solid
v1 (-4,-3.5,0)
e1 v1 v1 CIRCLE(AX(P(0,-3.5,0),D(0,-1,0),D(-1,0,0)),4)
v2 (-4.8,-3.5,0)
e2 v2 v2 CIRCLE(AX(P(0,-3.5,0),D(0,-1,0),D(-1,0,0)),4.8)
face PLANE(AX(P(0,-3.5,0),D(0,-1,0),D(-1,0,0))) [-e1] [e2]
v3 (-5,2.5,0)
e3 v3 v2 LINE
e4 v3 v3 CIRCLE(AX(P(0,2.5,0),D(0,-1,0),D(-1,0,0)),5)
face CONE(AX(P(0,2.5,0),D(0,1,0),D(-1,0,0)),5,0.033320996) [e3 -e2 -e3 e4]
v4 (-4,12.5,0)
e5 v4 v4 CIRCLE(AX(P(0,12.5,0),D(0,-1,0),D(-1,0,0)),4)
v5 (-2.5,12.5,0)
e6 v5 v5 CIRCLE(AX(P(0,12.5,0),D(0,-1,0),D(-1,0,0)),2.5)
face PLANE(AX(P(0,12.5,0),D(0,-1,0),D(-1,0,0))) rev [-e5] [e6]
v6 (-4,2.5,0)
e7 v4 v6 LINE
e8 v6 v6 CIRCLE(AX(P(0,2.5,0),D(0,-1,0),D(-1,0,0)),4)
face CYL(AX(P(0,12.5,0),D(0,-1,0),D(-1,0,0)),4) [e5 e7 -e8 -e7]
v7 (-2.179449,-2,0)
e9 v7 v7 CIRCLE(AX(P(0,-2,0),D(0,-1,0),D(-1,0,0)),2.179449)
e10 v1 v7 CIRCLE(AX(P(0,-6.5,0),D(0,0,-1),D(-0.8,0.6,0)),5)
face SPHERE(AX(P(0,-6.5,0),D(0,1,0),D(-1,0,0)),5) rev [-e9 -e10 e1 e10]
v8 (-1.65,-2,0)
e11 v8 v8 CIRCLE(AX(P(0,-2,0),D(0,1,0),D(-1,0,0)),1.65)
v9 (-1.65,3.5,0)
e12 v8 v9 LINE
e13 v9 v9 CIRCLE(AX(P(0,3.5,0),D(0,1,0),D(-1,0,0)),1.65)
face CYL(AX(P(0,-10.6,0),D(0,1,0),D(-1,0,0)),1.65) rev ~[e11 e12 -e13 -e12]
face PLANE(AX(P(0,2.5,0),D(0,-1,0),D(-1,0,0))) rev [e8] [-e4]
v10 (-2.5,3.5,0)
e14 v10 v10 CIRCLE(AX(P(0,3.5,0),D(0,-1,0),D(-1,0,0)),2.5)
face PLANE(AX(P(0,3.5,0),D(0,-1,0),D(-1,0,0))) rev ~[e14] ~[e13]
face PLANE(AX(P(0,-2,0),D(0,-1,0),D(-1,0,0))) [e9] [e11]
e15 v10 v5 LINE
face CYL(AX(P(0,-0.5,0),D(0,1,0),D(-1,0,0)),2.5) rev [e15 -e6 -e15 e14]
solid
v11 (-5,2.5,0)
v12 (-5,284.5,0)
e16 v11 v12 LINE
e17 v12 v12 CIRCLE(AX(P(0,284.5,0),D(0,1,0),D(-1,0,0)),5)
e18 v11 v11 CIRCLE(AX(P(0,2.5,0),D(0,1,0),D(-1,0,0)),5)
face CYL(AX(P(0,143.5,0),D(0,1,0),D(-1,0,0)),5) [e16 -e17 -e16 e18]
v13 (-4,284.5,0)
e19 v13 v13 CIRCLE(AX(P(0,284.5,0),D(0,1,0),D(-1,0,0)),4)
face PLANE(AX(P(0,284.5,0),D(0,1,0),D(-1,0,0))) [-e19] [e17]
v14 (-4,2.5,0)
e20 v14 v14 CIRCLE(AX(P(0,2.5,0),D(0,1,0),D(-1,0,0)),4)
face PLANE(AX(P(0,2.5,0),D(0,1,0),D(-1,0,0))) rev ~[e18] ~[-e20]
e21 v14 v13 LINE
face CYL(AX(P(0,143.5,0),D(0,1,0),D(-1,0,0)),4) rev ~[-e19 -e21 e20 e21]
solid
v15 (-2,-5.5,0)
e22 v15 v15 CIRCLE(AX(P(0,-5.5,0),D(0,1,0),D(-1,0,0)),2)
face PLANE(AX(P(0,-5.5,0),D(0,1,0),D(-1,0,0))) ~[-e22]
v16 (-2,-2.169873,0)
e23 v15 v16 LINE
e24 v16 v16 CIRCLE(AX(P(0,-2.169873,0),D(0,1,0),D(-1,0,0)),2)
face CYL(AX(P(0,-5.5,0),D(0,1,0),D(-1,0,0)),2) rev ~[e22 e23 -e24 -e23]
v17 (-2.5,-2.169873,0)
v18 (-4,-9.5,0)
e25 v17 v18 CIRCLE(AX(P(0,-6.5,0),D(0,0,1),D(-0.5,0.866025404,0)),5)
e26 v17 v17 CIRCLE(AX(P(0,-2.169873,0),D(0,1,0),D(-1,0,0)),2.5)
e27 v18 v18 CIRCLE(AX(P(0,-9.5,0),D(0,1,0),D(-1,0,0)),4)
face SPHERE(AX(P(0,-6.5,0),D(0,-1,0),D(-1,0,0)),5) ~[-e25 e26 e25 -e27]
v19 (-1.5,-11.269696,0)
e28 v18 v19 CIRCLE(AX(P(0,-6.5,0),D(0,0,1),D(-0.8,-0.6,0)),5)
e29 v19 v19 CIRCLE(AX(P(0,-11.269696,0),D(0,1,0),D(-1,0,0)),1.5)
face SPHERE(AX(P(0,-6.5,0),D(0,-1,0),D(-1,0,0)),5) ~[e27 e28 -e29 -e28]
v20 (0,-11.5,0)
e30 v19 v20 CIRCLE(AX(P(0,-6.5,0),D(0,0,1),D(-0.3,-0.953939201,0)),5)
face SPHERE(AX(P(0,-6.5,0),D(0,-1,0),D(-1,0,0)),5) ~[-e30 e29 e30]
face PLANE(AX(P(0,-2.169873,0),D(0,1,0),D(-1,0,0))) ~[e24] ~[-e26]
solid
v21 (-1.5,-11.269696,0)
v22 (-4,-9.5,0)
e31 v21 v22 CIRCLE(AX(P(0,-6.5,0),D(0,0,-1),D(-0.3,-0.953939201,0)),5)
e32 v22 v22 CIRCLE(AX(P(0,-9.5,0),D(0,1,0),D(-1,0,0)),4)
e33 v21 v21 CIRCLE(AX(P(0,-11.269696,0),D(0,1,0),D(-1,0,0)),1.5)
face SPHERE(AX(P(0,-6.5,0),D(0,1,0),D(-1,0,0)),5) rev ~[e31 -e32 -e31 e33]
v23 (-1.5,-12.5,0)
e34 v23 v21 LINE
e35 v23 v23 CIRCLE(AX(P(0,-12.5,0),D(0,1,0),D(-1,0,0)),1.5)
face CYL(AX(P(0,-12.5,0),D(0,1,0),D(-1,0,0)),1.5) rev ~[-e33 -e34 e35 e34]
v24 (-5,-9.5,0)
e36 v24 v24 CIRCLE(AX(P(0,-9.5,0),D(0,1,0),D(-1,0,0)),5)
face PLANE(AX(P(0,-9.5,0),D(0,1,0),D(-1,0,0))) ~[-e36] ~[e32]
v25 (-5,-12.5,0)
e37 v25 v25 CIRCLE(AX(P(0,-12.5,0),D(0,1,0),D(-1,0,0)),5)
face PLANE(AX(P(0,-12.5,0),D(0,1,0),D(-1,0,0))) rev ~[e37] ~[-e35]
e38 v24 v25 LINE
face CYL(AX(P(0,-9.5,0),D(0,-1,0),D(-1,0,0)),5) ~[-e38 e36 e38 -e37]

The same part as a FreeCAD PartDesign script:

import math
import FreeCAD as App
import Part
import Sketcher

V = App.Vector
Q = App.Units.Quantity

doc = App.newDocument("Part")
body = doc.addObject("PartDesign::Body", "Body")

sketch1 = body.newObject("Sketcher::SketchObject", "Sketch")
sketch1.AttachmentSupport = (doc.getObject("XY_Plane"), [""])
sketch1.MapMode = "FlatFace"
sketch1.addGeometry(Part.LineSegment(V(-5, 284.5, 0), V(-5, 2.5, 0)), False)
sketch1.addGeometry(Part.LineSegment(V(-5, 2.5, 0), V(-4, 2.5, 0)), False)
sketch1.addGeometry(Part.LineSegment(V(-4, 2.5, 0), V(-4, 284.5, 0)), False)
sketch1.addGeometry(Part.LineSegment(V(-4, 284.5, 0), V(-5, 284.5, 0)), False)
sketch1.addConstraint(Sketcher.Constraint("Coincident", 0, 2, 1, 1))
sketch1.addConstraint(Sketcher.Constraint("Coincident", 1, 2, 2, 1))
sketch1.addConstraint(Sketcher.Constraint("Coincident", 2, 2, 3, 1))
sketch1.addConstraint(Sketcher.Constraint("Coincident", 3, 2, 0, 1))
sketch1.addConstraint(Sketcher.Constraint("Vertical", 0))
sketch1.addConstraint(Sketcher.Constraint("Horizontal", 1))
sketch1.addConstraint(Sketcher.Constraint("Vertical", 2))
sketch1.addConstraint(Sketcher.Constraint("Horizontal", 3))
sketch1.addConstraint(Sketcher.Constraint("DistanceX", 1, 1, 1, 2, Q("1 mm")))
sketch1.addConstraint(Sketcher.Constraint("DistanceY", 0, 2, 0, 1, Q("282 mm")))
sketch1.addConstraint(Sketcher.Constraint("DistanceX", 0, 2, -1, 1, Q("5 mm")))
sketch1.addConstraint(Sketcher.Constraint("DistanceY", -1, 1, 0, 2, Q("2.5 mm")))
revolution = body.newObject("PartDesign::Revolution", "Revolution")
revolution.Profile = sketch1
revolution.ReferenceAxis = (sketch1, ["V_Axis"])
revolution.Angle = 360
body2 = doc.addObject("PartDesign::Body", "Body001")

sketch2 = body2.newObject("Sketcher::SketchObject", "Sketch001")
sketch2.AttachmentSupport = (doc.getObject("XY_Plane001"), [""])
sketch2.MapMode = "FlatFace"
sketch2.addGeometry(Part.LineSegment(V(-1.5, -12.5, 0), V(-1.5, -11.3, 0)), False)
sketch2.addGeometry(Part.ArcOfCircle(Part.Circle(V(0, -6.5, 0), V(0, 0, 1), 5), math.radians(-143), math.radians(-107)), False)
sketch2.addGeometry(Part.LineSegment(V(-4, -9.5, 0), V(-5, -9.5, 0)), False)
sketch2.addGeometry(Part.LineSegment(V(-5, -9.5, 0), V(-5, -12.5, 0)), False)
sketch2.addGeometry(Part.LineSegment(V(-5, -12.5, 0), V(-1.5, -12.5, 0)), False)
sketch2.addConstraint(Sketcher.Constraint("Coincident", 0, 2, 1, 2))
sketch2.addConstraint(Sketcher.Constraint("Coincident", 1, 1, 2, 1))
sketch2.addConstraint(Sketcher.Constraint("Coincident", 2, 2, 3, 1))
sketch2.addConstraint(Sketcher.Constraint("Coincident", 3, 2, 4, 1))
sketch2.addConstraint(Sketcher.Constraint("Coincident", 4, 2, 0, 1))
sketch2.addConstraint(Sketcher.Constraint("Vertical", 0))
sketch2.addConstraint(Sketcher.Constraint("Horizontal", 2))
sketch2.addConstraint(Sketcher.Constraint("Vertical", 3))
sketch2.addConstraint(Sketcher.Constraint("Horizontal", 4))
sketch2.addConstraint(Sketcher.Constraint("PointOnObject", 1, 3, -2))
sketch2.addConstraint(Sketcher.Constraint("Radius", 1, Q("5 mm")))
sketch2.addConstraint(Sketcher.Constraint("DistanceX", 2, 2, 2, 1, Q("1 mm")))
sketch2.addConstraint(Sketcher.Constraint("DistanceY", 3, 2, 3, 1, Q("3 mm")))
sketch2.addConstraint(Sketcher.Constraint("DistanceX", 4, 1, 4, 2, Q("3.5 mm")))
sketch2.addConstraint(Sketcher.Constraint("DistanceX", 1, 1, -1, 1, Q("4 mm")))
sketch2.addConstraint(Sketcher.Constraint("DistanceY", 1, 3, -1, 1, Q("6.5 mm")))
revolution2 = body2.newObject("PartDesign::Revolution", "Revolution001")
revolution2.Profile = sketch2
revolution2.ReferenceAxis = (sketch2, ["V_Axis"])
revolution2.Angle = 360
body3 = doc.addObject("PartDesign::Body", "Body002")

sketch3 = body3.newObject("Sketcher::SketchObject", "Sketch002")
sketch3.AttachmentSupport = (doc.getObject("XY_Plane002"), [""])
sketch3.MapMode = "FlatFace"
sketch3.addGeometry(Part.ArcOfCircle(Part.Circle(V(0, -6.5, 0), V(0, 0, 1), 5), math.radians(-107.46), math.radians(-90)), False)
sketch3.addGeometry(Part.LineSegment(V(0, -11.5, 0), V(0, -5.5, 0)), False)
sketch3.addGeometry(Part.LineSegment(V(0, -5.5, 0), V(-2, -5.5, 0)), False)
sketch3.addGeometry(Part.LineSegment(V(-2, -5.5, 0), V(-2, -2.2, 0)), False)
sketch3.addGeometry(Part.LineSegment(V(-2, -2.2, 0), V(-2.5, -2.2, 0)), False)
sketch3.addGeometry(Part.ArcOfCircle(Part.Circle(V(0, -6.5, 0), V(0, 0, 1), 5), math.radians(120), math.radians(217)), False)
sketch3.addGeometry(Part.ArcOfCircle(Part.Circle(V(0, -6.5, 0), V(0, 0, 1), 5), math.radians(-143), math.radians(-107)), False)
sketch3.addConstraint(Sketcher.Constraint("Coincident", 0, 2, 1, 1))
sketch3.addConstraint(Sketcher.Constraint("Coincident", 1, 2, 2, 1))
sketch3.addConstraint(Sketcher.Constraint("Coincident", 2, 2, 3, 1))
sketch3.addConstraint(Sketcher.Constraint("Coincident", 3, 2, 4, 1))
sketch3.addConstraint(Sketcher.Constraint("Coincident", 4, 2, 5, 1))
sketch3.addConstraint(Sketcher.Constraint("Tangent", 5, 2, 6, 1))
sketch3.addConstraint(Sketcher.Constraint("Tangent", 6, 2, 0, 1))
sketch3.addConstraint(Sketcher.Constraint("Vertical", 1))
sketch3.addConstraint(Sketcher.Constraint("Horizontal", 2))
sketch3.addConstraint(Sketcher.Constraint("Vertical", 3))
sketch3.addConstraint(Sketcher.Constraint("Horizontal", 4))
sketch3.addConstraint(Sketcher.Constraint("Coincident", 5, 3, 0, 3))
sketch3.addConstraint(Sketcher.Constraint("PointOnObject", 0, 3, -2))
sketch3.addConstraint(Sketcher.Constraint("PointOnObject", 0, 2, -2))
sketch3.addConstraint(Sketcher.Constraint("Radius", 0, Q("5 mm")))
sketch3.addConstraint(Sketcher.Constraint("DistanceX", 2, 2, 2, 1, Q("2 mm")))
sketch3.addConstraint(Sketcher.Constraint("DistanceY", 1, 1, 1, 2, Q("6 mm")))
sketch3.addConstraint(Sketcher.Constraint("DistanceX", 4, 2, 4, 1, Q("0.5 mm")))
sketch3.addConstraint(Sketcher.Constraint("DistanceX", 5, 2, -1, 1, Q("4 mm")))
sketch3.addConstraint(Sketcher.Constraint("DistanceY", 0, 3, -1, 1, Q("6.5 mm")))
sketch3.addConstraint(Sketcher.Constraint("DistanceX", 6, 2, -1, 1, Q("1.5 mm")))
revolution3 = body3.newObject("PartDesign::Revolution", "Revolution002")
revolution3.Profile = sketch3
revolution3.ReferenceAxis = (sketch3, ["V_Axis"])
revolution3.Angle = 360
body4 = doc.addObject("PartDesign::Body", "Body003")

sketch4 = body4.newObject("Sketcher::SketchObject", "Sketch003")
sketch4.AttachmentSupport = (doc.getObject("XY_Plane003"), [""])
sketch4.MapMode = "FlatFace"
sketch4.addGeometry(Part.LineSegment(V(-4.8, -3.5, 0), V(-4, -3.5, 0)), False)
sketch4.addGeometry(Part.ArcOfCircle(Part.Circle(V(0, -6.5, 0), V(0, 0, 1), 5), math.radians(116), math.radians(143)), False)
sketch4.addGeometry(Part.LineSegment(V(-2.2, -2, 0), V(0, -2, 0)), False)
sketch4.addGeometry(Part.LineSegment(V(0, -2, 0), V(0, 3.5, 0)), False)
sketch4.addGeometry(Part.LineSegment(V(0, 3.5, 0), V(-2.5, 3.5, 0)), False)
sketch4.addGeometry(Part.LineSegment(V(-2.5, 3.5, 0), V(-2.5, 12.5, 0)), False)
sketch4.addGeometry(Part.LineSegment(V(-2.5, 12.5, 0), V(-4, 12.5, 0)), False)
sketch4.addGeometry(Part.LineSegment(V(-4, 12.5, 0), V(-4, 2.5, 0)), False)
sketch4.addGeometry(Part.LineSegment(V(-4, 2.5, 0), V(-5, 2.5, 0)), False)
sketch4.addGeometry(Part.LineSegment(V(-5, 2.5, 0), V(-4.8, -3.5, 0)), False)
sketch4.addConstraint(Sketcher.Constraint("Coincident", 0, 2, 1, 2))
sketch4.addConstraint(Sketcher.Constraint("Coincident", 1, 1, 2, 1))
sketch4.addConstraint(Sketcher.Constraint("Coincident", 2, 2, 3, 1))
sketch4.addConstraint(Sketcher.Constraint("Coincident", 3, 2, 4, 1))
sketch4.addConstraint(Sketcher.Constraint("Coincident", 4, 2, 5, 1))
sketch4.addConstraint(Sketcher.Constraint("Coincident", 5, 2, 6, 1))
sketch4.addConstraint(Sketcher.Constraint("Coincident", 6, 2, 7, 1))
sketch4.addConstraint(Sketcher.Constraint("Coincident", 7, 2, 8, 1))
sketch4.addConstraint(Sketcher.Constraint("Coincident", 8, 2, 9, 1))
sketch4.addConstraint(Sketcher.Constraint("Coincident", 9, 2, 0, 1))
sketch4.addConstraint(Sketcher.Constraint("Horizontal", 0))
sketch4.addConstraint(Sketcher.Constraint("Horizontal", 2))
sketch4.addConstraint(Sketcher.Constraint("Vertical", 3))
sketch4.addConstraint(Sketcher.Constraint("Horizontal", 4))
sketch4.addConstraint(Sketcher.Constraint("Vertical", 5))
sketch4.addConstraint(Sketcher.Constraint("Horizontal", 6))
sketch4.addConstraint(Sketcher.Constraint("Vertical", 7))
sketch4.addConstraint(Sketcher.Constraint("Horizontal", 8))
sketch4.addConstraint(Sketcher.Constraint("PointOnObject", 1, 3, -2))
sketch4.addConstraint(Sketcher.Constraint("PointOnObject", 2, 2, -2))
sketch4.addConstraint(Sketcher.Constraint("Vertical", 0, 2, 6, 2))
sketch4.addConstraint(Sketcher.Constraint("Radius", 1, Q("5 mm")))
sketch4.addConstraint(Sketcher.Constraint("DistanceX", 8, 2, 8, 1, Q("1 mm")))
sketch4.addConstraint(Sketcher.Constraint("DistanceY", 5, 1, 5, 2, Q("9 mm")))
sketch4.addConstraint(Sketcher.Constraint("DistanceY", 7, 2, 7, 1, Q("10 mm")))
sketch4.addConstraint(Sketcher.Constraint("DistanceX", 0, 1, 0, 2, Q("0.8 mm")))
sketch4.addConstraint(Sketcher.Constraint("DistanceX", 4, 2, 4, 1, Q("2.5 mm")))
sketch4.addConstraint(Sketcher.Constraint("DistanceX", 6, 2, 6, 1, Q("1.5 mm")))
sketch4.addConstraint(Sketcher.Constraint("DistanceY", 3, 1, 3, 2, Q("5.5 mm")))
sketch4.addConstraint(Sketcher.Constraint("DistanceY", 1, 1, -1, 1, Q("2 mm")))
sketch4.addConstraint(Sketcher.Constraint("DistanceY", 0, 2, 3, 2, Q("7 mm")))
revolution4 = body4.newObject("PartDesign::Revolution", "Revolution003")
revolution4.Profile = sketch4
revolution4.ReferenceAxis = (sketch4, ["V_Axis"])
revolution4.Angle = 360

sketch5 = body4.newObject("Sketcher::SketchObject", "Sketch004")
sketch5.AttachmentSupport = (doc.getObject("XZ_Plane003"), [""])
sketch5.MapMode = "FlatFace"
sketch5.AttachmentOffset = App.Placement(V(0, 0, 2), App.Rotation())
sketch5.addGeometry(Part.Circle(V(0, 0, 0), V(0, 0, 1), 1.6), False)
sketch5.addConstraint(Sketcher.Constraint("Coincident", 0, 3, -1, 1))
sketch5.addConstraint(Sketcher.Constraint("Diameter", 0, Q("3.3 mm")))
doc.recompute()
hole = body4.newObject("PartDesign::Hole", "Hole")
hole.Profile = sketch5
hole.ThreadType = "None"
hole.Diameter = 3.3
hole.DepthType = "Dimension"
hole.Depth = 8.6
hole.DrillPoint = "Angled"
hole.DrillPointAngle = 118

doc.recompute()
